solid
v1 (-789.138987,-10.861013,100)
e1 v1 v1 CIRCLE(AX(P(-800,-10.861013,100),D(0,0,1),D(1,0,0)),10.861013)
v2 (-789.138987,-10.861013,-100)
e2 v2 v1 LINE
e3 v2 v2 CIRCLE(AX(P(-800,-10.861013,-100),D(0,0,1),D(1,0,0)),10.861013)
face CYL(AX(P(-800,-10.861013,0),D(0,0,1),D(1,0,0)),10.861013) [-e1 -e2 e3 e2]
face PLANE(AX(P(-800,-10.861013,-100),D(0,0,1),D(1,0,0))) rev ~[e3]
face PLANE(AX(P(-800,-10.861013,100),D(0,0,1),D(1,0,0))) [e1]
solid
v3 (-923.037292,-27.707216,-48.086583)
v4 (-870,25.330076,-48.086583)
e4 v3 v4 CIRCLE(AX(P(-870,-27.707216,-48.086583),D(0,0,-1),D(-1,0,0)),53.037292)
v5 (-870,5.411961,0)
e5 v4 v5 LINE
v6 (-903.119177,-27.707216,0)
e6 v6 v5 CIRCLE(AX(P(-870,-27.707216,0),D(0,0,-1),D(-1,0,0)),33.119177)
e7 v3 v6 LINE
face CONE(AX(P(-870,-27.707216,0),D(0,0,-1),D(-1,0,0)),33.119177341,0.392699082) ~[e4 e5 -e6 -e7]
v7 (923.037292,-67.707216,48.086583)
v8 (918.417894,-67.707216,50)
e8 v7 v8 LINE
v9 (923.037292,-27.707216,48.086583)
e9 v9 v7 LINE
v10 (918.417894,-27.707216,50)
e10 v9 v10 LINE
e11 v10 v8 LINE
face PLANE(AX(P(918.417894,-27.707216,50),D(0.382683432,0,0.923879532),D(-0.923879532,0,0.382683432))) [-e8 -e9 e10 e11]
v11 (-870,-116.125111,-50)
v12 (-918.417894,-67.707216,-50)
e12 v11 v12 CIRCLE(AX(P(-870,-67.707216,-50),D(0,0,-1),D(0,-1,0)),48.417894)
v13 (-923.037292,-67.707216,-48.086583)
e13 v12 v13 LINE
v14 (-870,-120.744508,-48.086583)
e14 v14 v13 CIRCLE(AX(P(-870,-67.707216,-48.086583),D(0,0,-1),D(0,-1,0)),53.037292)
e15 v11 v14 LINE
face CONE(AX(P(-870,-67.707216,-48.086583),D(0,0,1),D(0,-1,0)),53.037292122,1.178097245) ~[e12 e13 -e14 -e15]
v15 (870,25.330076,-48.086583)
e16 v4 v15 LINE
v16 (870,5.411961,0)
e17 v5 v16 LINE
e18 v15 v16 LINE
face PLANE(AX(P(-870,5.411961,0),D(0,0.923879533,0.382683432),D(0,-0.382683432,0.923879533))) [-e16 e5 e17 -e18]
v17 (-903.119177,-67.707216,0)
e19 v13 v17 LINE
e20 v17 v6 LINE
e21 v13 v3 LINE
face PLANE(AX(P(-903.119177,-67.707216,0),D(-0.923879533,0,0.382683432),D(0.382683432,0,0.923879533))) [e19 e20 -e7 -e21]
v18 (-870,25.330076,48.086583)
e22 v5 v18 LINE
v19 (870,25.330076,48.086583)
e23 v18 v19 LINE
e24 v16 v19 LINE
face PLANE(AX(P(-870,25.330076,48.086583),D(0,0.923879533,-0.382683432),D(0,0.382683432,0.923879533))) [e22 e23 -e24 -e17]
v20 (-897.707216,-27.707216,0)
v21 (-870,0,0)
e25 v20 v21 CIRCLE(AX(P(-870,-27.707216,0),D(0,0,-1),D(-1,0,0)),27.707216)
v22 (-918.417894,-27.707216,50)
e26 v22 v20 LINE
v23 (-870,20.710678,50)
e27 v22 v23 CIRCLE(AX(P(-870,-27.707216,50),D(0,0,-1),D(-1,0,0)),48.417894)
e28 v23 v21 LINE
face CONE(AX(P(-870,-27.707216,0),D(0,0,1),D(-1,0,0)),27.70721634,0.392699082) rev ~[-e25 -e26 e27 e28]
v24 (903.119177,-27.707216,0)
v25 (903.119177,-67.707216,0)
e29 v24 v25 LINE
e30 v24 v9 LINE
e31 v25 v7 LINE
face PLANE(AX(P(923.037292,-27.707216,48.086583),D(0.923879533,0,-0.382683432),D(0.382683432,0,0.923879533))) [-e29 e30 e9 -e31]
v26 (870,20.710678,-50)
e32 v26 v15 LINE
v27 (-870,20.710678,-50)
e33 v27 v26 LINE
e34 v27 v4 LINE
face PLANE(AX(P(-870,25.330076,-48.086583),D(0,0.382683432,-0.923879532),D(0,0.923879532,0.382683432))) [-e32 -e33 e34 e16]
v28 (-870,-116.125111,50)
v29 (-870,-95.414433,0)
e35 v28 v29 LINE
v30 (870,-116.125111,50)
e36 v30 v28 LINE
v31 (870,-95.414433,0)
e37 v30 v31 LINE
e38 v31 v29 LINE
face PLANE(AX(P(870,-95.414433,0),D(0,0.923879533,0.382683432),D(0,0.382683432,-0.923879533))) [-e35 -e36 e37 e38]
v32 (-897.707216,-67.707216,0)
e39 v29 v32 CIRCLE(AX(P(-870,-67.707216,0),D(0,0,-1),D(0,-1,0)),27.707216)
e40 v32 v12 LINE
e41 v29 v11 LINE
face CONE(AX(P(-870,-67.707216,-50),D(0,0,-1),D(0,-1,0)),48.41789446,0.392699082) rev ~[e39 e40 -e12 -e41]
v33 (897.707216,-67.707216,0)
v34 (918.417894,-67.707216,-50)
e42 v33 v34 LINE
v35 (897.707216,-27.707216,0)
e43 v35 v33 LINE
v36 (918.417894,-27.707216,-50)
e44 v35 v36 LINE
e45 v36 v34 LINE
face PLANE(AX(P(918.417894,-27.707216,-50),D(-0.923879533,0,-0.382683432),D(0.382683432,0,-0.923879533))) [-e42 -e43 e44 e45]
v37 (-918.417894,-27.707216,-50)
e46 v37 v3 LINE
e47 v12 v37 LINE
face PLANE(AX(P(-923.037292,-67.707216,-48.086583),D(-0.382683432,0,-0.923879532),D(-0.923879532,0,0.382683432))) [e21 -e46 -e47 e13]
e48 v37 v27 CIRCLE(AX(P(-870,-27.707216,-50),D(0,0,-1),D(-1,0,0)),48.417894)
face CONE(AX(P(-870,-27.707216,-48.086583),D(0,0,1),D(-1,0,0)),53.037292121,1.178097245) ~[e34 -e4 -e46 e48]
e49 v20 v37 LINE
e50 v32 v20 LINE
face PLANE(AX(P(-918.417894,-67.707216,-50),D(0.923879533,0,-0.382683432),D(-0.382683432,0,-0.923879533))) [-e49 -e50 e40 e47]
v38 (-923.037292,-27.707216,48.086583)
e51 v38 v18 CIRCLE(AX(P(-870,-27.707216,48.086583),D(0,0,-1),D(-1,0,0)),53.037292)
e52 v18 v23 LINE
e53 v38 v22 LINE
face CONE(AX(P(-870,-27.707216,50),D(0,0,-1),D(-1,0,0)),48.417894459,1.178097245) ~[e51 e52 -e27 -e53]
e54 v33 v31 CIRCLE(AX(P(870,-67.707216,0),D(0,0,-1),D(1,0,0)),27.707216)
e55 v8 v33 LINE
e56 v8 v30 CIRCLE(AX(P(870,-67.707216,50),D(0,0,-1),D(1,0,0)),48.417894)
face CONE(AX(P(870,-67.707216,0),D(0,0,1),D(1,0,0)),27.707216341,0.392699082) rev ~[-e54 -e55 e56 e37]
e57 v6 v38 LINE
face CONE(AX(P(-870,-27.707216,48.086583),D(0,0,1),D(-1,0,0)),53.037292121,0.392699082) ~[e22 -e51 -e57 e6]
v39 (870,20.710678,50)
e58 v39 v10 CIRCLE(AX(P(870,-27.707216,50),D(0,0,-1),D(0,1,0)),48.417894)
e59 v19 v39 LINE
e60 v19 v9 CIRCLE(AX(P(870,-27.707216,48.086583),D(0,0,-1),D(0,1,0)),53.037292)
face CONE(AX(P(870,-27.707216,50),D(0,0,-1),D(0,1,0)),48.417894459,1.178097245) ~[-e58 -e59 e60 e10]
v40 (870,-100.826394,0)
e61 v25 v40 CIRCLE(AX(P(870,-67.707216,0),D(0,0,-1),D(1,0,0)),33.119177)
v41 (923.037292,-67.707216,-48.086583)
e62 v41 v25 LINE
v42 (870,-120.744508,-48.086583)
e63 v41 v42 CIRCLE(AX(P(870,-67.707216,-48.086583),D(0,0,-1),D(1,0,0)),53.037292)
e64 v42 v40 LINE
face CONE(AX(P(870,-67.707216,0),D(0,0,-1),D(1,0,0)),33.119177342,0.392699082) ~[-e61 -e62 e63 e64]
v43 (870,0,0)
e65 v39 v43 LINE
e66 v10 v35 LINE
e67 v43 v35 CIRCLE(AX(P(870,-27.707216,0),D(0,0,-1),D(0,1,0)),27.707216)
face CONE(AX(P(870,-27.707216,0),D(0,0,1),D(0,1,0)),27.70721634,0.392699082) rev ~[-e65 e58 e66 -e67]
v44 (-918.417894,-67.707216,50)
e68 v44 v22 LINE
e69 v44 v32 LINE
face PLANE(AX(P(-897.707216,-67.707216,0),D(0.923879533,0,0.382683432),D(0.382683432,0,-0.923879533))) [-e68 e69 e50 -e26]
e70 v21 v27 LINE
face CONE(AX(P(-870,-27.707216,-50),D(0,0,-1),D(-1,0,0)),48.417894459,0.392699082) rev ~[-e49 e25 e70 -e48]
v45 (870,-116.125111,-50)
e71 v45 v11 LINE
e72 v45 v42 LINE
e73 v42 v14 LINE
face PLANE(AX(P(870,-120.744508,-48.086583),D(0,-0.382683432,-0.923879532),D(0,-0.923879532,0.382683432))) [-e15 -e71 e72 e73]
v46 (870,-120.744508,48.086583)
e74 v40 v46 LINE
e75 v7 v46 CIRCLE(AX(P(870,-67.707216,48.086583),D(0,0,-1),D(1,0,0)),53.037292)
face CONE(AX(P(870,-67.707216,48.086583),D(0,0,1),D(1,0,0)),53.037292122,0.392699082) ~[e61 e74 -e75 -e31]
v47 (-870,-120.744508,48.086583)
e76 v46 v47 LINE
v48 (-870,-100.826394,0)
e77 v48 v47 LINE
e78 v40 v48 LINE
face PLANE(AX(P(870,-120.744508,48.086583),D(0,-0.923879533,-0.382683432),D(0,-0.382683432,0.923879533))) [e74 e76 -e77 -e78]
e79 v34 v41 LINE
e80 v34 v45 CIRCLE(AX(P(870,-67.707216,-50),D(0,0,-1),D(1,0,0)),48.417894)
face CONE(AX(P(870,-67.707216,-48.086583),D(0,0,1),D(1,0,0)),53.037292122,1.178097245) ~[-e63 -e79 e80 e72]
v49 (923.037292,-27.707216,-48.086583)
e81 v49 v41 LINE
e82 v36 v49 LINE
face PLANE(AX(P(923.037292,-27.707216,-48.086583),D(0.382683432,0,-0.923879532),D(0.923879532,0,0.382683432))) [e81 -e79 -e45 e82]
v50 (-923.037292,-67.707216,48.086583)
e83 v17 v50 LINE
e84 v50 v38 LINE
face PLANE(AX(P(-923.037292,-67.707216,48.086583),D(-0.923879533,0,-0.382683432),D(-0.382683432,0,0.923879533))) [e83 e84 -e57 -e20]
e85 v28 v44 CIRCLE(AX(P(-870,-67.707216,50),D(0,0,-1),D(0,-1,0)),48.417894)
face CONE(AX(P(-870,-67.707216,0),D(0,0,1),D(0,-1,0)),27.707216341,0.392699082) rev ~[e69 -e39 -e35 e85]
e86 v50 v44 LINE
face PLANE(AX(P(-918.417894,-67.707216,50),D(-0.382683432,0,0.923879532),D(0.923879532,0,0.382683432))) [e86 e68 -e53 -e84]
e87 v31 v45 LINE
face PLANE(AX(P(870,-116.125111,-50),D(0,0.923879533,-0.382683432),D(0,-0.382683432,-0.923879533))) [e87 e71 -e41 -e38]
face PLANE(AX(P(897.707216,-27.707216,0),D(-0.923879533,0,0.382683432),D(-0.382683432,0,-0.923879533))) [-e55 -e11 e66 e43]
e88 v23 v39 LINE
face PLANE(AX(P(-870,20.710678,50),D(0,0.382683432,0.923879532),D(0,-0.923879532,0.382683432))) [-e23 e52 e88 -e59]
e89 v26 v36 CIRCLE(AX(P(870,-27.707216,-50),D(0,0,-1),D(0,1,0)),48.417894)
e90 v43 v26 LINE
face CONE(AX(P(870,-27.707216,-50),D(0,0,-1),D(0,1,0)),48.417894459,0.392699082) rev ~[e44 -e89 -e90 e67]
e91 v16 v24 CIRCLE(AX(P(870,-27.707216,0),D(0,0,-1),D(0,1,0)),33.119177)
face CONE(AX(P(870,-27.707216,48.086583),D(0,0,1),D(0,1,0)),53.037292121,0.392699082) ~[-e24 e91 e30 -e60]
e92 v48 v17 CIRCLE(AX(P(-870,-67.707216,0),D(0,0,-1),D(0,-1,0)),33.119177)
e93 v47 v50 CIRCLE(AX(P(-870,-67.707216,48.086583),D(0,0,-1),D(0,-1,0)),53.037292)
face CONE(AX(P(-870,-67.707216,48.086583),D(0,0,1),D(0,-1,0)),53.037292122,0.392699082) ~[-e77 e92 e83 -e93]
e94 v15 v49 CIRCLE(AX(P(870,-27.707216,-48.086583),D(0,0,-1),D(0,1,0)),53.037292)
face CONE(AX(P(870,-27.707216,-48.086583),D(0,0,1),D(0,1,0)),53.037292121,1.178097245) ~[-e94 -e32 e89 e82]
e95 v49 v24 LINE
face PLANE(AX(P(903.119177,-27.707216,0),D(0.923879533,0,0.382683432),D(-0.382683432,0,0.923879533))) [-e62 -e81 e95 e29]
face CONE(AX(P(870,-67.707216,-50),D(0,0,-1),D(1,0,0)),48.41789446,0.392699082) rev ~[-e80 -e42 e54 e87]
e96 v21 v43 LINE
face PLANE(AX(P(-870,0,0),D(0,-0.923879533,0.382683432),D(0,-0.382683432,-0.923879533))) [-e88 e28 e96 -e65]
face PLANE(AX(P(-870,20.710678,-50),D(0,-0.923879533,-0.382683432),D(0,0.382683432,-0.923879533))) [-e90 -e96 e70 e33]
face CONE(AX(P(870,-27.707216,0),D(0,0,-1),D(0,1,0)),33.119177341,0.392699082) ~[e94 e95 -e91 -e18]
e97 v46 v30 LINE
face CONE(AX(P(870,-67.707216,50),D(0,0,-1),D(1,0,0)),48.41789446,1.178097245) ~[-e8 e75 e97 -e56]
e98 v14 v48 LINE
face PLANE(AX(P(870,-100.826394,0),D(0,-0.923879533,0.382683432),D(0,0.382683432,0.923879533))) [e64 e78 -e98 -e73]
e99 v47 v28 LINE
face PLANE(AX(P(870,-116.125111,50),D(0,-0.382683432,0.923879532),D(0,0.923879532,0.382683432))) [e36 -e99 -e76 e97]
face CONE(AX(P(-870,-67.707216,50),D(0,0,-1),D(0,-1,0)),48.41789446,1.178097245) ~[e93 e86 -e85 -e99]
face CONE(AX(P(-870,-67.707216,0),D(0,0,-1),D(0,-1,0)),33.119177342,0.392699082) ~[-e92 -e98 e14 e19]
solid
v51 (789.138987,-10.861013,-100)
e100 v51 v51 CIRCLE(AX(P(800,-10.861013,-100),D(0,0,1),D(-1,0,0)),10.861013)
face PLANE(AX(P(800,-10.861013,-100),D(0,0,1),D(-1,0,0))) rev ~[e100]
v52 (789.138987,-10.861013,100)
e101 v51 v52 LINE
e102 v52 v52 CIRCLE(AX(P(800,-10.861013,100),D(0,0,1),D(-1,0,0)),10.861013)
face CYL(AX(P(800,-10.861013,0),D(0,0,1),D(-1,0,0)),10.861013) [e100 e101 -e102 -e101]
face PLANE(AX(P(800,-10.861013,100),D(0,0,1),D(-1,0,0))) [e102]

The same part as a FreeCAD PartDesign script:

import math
import FreeCAD as App
import Part
import Sketcher
from FreeCAD import Vector
Q = App.Units.Quantity

doc = App.newDocument("Part")
body = doc.addObject("PartDesign::Body", "Body")

# Sketch on YZ plane
sketch1 = doc.addObject("Sketcher::SketchObject", "Sketch")
body.addObject(sketch1)
sketch1.AttachmentSupport = (doc.YZ_Plane, [""])
sketch1.MapMode = "FlatFace"
sketch1.addGeometry(Part.LineSegment(Vector(20.7, 50, 0), Vector(0, 0, 0)), False)
sketch1.addGeometry(Part.LineSegment(Vector(0, 0, 0), Vector(20.7, -50, 0)), False)
sketch1.addGeometry(Part.LineSegment(Vector(20.7, -50, 0), Vector(25.3, -48.1, 0)), False)
sketch1.addGeometry(Part.LineSegment(Vector(25.3, -48.1, 0), Vector(5.4, 0, 0)), False)
sketch1.addGeometry(Part.LineSegment(Vector(5.4, 0, 0), Vector(25.3, 48.1, 0)), False)
sketch1.addGeometry(Part.LineSegment(Vector(25.3, 48.1, 0), Vector(20.7, 50, 0)), False)
sketch1.addConstraint(Sketcher.Constraint("Coincident", 0, 2, 1, 1))
sketch1.addConstraint(Sketcher.Constraint("Coincident", 1, 2, 2, 1))
sketch1.addConstraint(Sketcher.Constraint("Coincident", 2, 2, 3, 1))
sketch1.addConstraint(Sketcher.Constraint("Coincident", 3, 2, 4, 1))
sketch1.addConstraint(Sketcher.Constraint("Coincident", 4, 2, 5, 1))
sketch1.addConstraint(Sketcher.Constraint("Coincident", 5, 2, 0, 1))
sketch1.addConstraint(Sketcher.Constraint("Coincident", 0, 2, -1, 1))
sketch1.addConstraint(Sketcher.Constraint("Symmetric", 2, 2, 4, 2, -1))
sketch1.addConstraint(Sketcher.Constraint("Symmetric", 1, 2, 5, 2, -1))
sketch1.addConstraint(Sketcher.Constraint("PointOnObject", 3, 2, -1))
sketch1.addConstraint(Sketcher.Constraint("Perpendicular", 1, 2))
sketch1.addConstraint(Sketcher.Constraint("Perpendicular", 2, 3))
sketch1.addConstraint(Sketcher.Constraint("Distance", 2, 5.0))
sketch1.addConstraint(Sketcher.Constraint("DistanceY", 1, 2, -1, 1, 50.0))
sketch1.addConstraint(Sketcher.Constraint("Angle", 0, Q("-112.5 deg")))

# Sketch on XY plane
sketch2 = doc.addObject("Sketcher::SketchObject", "Sketch001")
body.addObject(sketch2)
sketch2.AttachmentSupport = (doc.XY_Plane, [""])
sketch2.MapMode = "FlatFace"
sketch2.addGeometry(Part.LineSegment(Vector(-870, 2, 0), Vector(870, 2, 0)), False)
sketch2.addGeometry(Part.ArcOfCircle(Part.Circle(Vector(870, -28, 0), Vector(0, 0, 1), 30), math.radians(0), math.radians(90)), False)
sketch2.addGeometry(Part.LineSegment(Vector(900, -28, 0), Vector(900, -68, 0)), False)
sketch2.addGeometry(Part.ArcOfCircle(Part.Circle(Vector(870, -68, 0), Vector(0, 0, 1), 30), math.radians(-90), math.radians(0)), False)
sketch2.addGeometry(Part.LineSegment(Vector(870, -98, 0), Vector(-870, -98, 0)), False)
sketch2.addGeometry(Part.ArcOfCircle(Part.Circle(Vector(-870, -68, 0), Vector(0, 0, 1), 30), math.radians(180), math.radians(270)), False)
sketch2.addGeometry(Part.LineSegment(Vector(-900, -68, 0), Vector(-900, -28, 0)), False)
sketch2.addGeometry(Part.ArcOfCircle(Part.Circle(Vector(-870, -28, 0), Vector(0, 0, 1), 30), math.radians(90), math.radians(180)), False)
sketch2.addConstraint(Sketcher.Constraint("Tangent", 0, 2, 1, 2))
sketch2.addConstraint(Sketcher.Constraint("Tangent", 1, 1, 2, 1))
sketch2.addConstraint(Sketcher.Constraint("Tangent", 2, 2, 3, 2))
sketch2.addConstraint(Sketcher.Constraint("Tangent", 3, 1, 4, 1))
sketch2.addConstraint(Sketcher.Constraint("Tangent", 4, 2, 5, 2))
sketch2.addConstraint(Sketcher.Constraint("Tangent", 5, 1, 6, 1))
sketch2.addConstraint(Sketcher.Constraint("Tangent", 6, 2, 7, 2))
sketch2.addConstraint(Sketcher.Constraint("Tangent", 7, 1, 0, 1))
sketch2.addConstraint(Sketcher.Constraint("Horizontal", 0))
sketch2.addConstraint(Sketcher.Constraint("Vertical", 2))
sketch2.addConstraint(Sketcher.Constraint("Horizontal", 4))
sketch2.addConstraint(Sketcher.Constraint("Vertical", 6))
sketch2.addConstraint(Sketcher.Constraint("Equal", 1, 3))
sketch2.addConstraint(Sketcher.Constraint("Equal", 3, 5))
sketch2.addConstraint(Sketcher.Constraint("Equal", 5, 7))
sketch2.addConstraint(Sketcher.Constraint("Radius", 1, 30.0))
sketch2.addConstraint(Sketcher.Constraint("DistanceX", 0, 1, 0, 2, 1740.0))
sketch2.addConstraint(Sketcher.Constraint("DistanceY", 2, 2, 2, 1, 40.0))
sketch2.addConstraint(Sketcher.Constraint("DistanceX", -1, 1, 1, 3, 870.0))
sketch2.addConstraint(Sketcher.Constraint("DistanceY", 1, 3, -1, 1, 27.707216))
doc.recompute()

additivepipe = doc.addObject("PartDesign::AdditivePipe", "AdditivePipe")
body.addObject(additivepipe)
additivepipe.Profile = sketch1
additivepipe.Spine = (sketch2, ["Edge1", "Edge2", "Edge3", "Edge4", "Edge5", "Edge6", "Edge7", "Edge8"])
body2 = doc.addObject("PartDesign::Body", "Body001")

# Sketch on XY plane
sketch3 = doc.addObject("Sketcher::SketchObject", "Sketch002")
body2.addObject(sketch3)
sketch3.AttachmentSupport = (doc.getObject("XY_Plane001"), [""])
sketch3.MapMode = "FlatFace"
sketch3.addGeometry(Part.Circle(Vector(-800, -11, 0), Vector(0, 0, 1), 11), False)
sketch3.addConstraint(Sketcher.Constraint("DistanceX", 0, 3, -1, 1, 800.0))
sketch3.addConstraint(Sketcher.Constraint("Diameter", 0, 21.722026))
sketch3.addConstraint(Sketcher.Constraint("DistanceY", 0, 3, -1, 1, 10.861013))
pad1 = doc.addObject("PartDesign::Pad", "Pad")
body2.addObject(pad1)
pad1.Profile = sketch3
pad1.Length = 200
pad1.Midplane = True
body3 = doc.addObject("PartDesign::Body", "Body002")

# Sketch on XY plane
sketch4 = doc.addObject("Sketcher::SketchObject", "Sketch003")
body3.addObject(sketch4)
sketch4.AttachmentSupport = (doc.getObject("XY_Plane002"), [""])
sketch4.MapMode = "FlatFace"
sketch4.addGeometry(Part.Circle(Vector(800, -11, 0), Vector(0, 0, 1), 11), False)
sketch4.addConstraint(Sketcher.Constraint("DistanceX", -1, 1, 0, 3, 800.0))
sketch4.addConstraint(Sketcher.Constraint("Diameter", 0, 21.722026))
sketch4.addConstraint(Sketcher.Constraint("DistanceY", 0, 3, -1, 1, 10.861013))
pad2 = doc.addObject("PartDesign::Pad", "Pad001")
body3.addObject(pad2)
pad2.Profile = sketch4
pad2.Length = 200
pad2.Midplane = True

doc.recompute()
